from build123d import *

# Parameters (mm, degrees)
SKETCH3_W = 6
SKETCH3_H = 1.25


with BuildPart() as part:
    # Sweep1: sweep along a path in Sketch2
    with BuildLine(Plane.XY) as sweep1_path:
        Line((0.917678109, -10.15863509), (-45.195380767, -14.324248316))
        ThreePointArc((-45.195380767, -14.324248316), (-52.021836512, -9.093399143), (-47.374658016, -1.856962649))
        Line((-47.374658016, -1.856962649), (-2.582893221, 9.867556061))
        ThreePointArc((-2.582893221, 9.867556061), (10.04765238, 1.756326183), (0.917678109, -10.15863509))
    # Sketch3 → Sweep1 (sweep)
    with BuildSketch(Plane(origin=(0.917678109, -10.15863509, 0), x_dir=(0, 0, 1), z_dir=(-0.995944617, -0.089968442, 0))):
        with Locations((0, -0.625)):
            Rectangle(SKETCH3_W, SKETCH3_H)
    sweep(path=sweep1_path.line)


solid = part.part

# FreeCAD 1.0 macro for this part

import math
import FreeCAD as App
import Part
import Sketcher
from FreeCAD import Vector


def add_polygon(sketch, points):
    """Adds a closed chain of lines whose ends are joined by coincident constraints."""
    first, n = sketch.GeometryCount, len(points)
    for a, b in zip(points, points[1:] + points[:1]):
        sketch.addGeometry(Part.LineSegment(App.Vector(*a, 0), App.Vector(*b, 0)), False)
    for i in range(n):
        sketch.addConstraint(Sketcher.Constraint("Coincident", first + i, 2, first + (i + 1) % n, 1))

doc = App.newDocument("Part")
params = doc.addObject("Spreadsheet::Sheet", "Params")
for row, (alias, value) in enumerate([
    ("sketch1_width", "6 mm"),
    ("sketch1_height", "1.25 mm"),
    ("sketch2_radius", "10.2 mm"),
    ("sketch2_radius2", "6.35 mm"),
], start=1):
    params.set(f"A{row}", alias)
    params.set(f"B{row}", "=" + value)
    params.setAlias(f"B{row}", alias)

body = doc.addObject("PartDesign::Body", "Body")

sketch1 = body.newObject("Sketcher::SketchObject", "Sketch")
sketch1.Placement = App.Placement(Vector(0.917678, -10.158635, 0), App.Rotation(Vector(0, 0, 1), Vector(-0.089968442, 0.995944617, 0), Vector(-0.995944617, -0.089968442, 0), "ZXY"))
add_polygon(sketch1, [(-3, 0), (-3, -1.25), (3, -1.25), (3, 0)])
sketch1.addConstraint([
    Sketcher.Constraint("Vertical", 0),
    Sketcher.Constraint("Horizontal", 1),
    Sketcher.Constraint("Vertical", 2),
    Sketcher.Constraint("Horizontal", 3),
    Sketcher.Constraint("Symmetric", 2, 2, 3, 2, -1, 1),
    Sketcher.Constraint("DistanceX", 1, 1, 1, 2, 6.0),
    Sketcher.Constraint("DistanceY", 0, 2, 0, 1, 1.25),
])
sketch1.setExpression("Constraints[9]", "Params.sketch1_width")
sketch1.setExpression("Constraints[10]", "Params.sketch1_height")

sketch2 = body.newObject("Sketcher::SketchObject", "Sketch001")
sketch2.AttachmentSupport = (doc.getObject("XY_Plane"), [""])
sketch2.MapMode = "FlatFace"
sketch2.addGeometry([
    Part.LineSegment(Vector(0.917678, -10.158635, 0), Vector(-45.195381, -14.324248, 0)),
    Part.ArcOfCircle(Part.Circle(Vector(-45.76668, -8, 0), Vector(0, 0, 1), 6.35), math.radians(104.668423), math.radians(275.161792)),
    Part.LineSegment(Vector(-47.374658, -1.856963, 0), Vector(-2.582893, 9.867556, 0)),
    Part.ArcOfCircle(Part.Circle(Vector(0, 0, 0), Vector(0, 0, 1), 10.2), math.radians(-84.838208), math.radians(104.668423)),
], False)
sketch2.addConstraint([
    Sketcher.Constraint("Coincident", 0, 2, 1, 2),
    Sketcher.Constraint("Coincident", 1, 1, 2, 1),
    Sketcher.Constraint("Coincident", 2, 2, 3, 2),
    Sketcher.Constraint("Coincident", 3, 1, 0, 1),
    Sketcher.Constraint("Coincident", 3, 3, -1, 1),
    Sketcher.Constraint("Radius", 3, 10.2),
    Sketcher.Constraint("Radius", 1, 6.35),
    Sketcher.Constraint("DistanceY", 1, 3, -1, 1, 8.0),
    Sketcher.Constraint("DistanceX", 1, 3, 0, 2, 0.5713),
    Sketcher.Constraint("DistanceX", 1, 3, -1, 1, 45.76668),
    Sketcher.Constraint("DistanceX", 1, 1, -1, 1, 47.374658),
    Sketcher.Constraint("DistanceX", -1, 1, 3, 1, 0.917678),
    Sketcher.Constraint("DistanceY", 1, 1, 2, 2, 11.724519),
])
sketch2.setExpression("Constraints[5]", "Params.sketch2_radius")
sketch2.setExpression("Constraints[6]", "Params.sketch2_radius2")
doc.recompute()

additivepipe = body.newObject("PartDesign::AdditivePipe", "AdditivePipe")
additivepipe.Profile = sketch1
additivepipe.Spine = (sketch2, ["Edge1", "Edge2", "Edge3", "Edge4"])

doc.recompute()
